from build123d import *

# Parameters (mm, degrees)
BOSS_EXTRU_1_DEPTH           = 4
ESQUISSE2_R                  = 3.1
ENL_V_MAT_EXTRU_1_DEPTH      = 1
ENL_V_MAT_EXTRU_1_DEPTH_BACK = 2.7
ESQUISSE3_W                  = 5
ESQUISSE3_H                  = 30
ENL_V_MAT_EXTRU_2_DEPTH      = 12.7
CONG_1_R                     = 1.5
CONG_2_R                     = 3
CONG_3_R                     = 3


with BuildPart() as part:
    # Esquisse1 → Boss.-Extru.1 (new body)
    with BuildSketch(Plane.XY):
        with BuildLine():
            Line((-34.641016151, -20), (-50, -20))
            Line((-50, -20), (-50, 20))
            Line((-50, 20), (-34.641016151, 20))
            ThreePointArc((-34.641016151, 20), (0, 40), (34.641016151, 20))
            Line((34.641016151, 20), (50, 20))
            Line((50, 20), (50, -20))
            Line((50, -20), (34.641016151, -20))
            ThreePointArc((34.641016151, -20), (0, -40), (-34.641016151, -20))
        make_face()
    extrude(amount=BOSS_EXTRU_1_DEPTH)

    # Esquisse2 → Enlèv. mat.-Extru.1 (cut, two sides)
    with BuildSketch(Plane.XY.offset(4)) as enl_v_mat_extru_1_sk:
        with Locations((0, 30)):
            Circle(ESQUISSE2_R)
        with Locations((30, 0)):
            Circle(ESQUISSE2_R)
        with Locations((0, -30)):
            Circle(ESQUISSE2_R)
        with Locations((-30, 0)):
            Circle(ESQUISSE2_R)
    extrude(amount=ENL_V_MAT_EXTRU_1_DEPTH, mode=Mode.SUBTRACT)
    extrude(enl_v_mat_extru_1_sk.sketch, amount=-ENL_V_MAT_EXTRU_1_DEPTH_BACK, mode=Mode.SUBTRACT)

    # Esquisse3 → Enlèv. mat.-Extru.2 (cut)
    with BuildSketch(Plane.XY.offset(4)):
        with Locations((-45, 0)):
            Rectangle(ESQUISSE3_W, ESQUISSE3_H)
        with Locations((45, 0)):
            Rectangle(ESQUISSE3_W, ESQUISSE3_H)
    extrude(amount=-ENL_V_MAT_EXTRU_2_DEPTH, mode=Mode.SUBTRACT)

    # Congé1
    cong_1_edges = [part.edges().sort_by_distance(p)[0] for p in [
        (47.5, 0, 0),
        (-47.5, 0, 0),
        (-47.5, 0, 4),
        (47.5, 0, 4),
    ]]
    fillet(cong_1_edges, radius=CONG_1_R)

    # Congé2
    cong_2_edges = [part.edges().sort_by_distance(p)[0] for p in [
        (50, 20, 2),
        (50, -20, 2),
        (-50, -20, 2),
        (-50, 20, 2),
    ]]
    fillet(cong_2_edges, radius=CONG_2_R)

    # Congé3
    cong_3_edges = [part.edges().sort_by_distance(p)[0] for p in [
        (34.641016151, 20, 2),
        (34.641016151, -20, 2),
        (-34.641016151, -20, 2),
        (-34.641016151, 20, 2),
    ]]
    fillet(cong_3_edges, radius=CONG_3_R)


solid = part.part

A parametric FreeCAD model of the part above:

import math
import FreeCAD as App
import Part
import Sketcher
from FreeCAD import Vector


def edges_at(feature, points):
    """Names of the edges that pass closest to the given points."""
    edges = feature.Shape.Edges
    near = lambda p: min(range(len(edges)), key=lambda i: edges[i].distToShape(Part.Vertex(*p))[0])
    return sorted({f"Edge{near(p) + 1}" for p in points})


def add_polygon(sketch, points):
    """Adds a closed chain of lines whose ends are joined by coincident constraints."""
    first, n = sketch.GeometryCount, len(points)
    for a, b in zip(points, points[1:] + points[:1]):
        sketch.addGeometry(Part.LineSegment(App.Vector(*a, 0), App.Vector(*b, 0)), False)
    for i in range(n):
        sketch.addConstraint(Sketcher.Constraint("Coincident", first + i, 2, first + (i + 1) % n, 1))

doc = App.newDocument("Part")
body = doc.addObject("PartDesign::Body", "Body")

# Sketch on XY plane
sketch1 = doc.addObject("Sketcher::SketchObject", "Sketch")
body.addObject(sketch1)
sketch1.AttachmentSupport = (doc.XY_Plane, [""])
sketch1.MapMode = "FlatFace"
sketch1.addGeometry([
    Part.LineSegment(Vector(-50, -20, 0), Vector(-35, -20, 0)),  # 0
    Part.ArcOfCircle(Part.Circle(Vector(0, 0, 0), Vector(0, 0, 1), 40), math.radians(-150), math.radians(-30)),  # 1
    Part.LineSegment(Vector(35, -20, 0), Vector(50, -20, 0)),  # 2
    Part.LineSegment(Vector(50, -20, 0), Vector(50, 20, 0)),  # 3
    Part.LineSegment(Vector(50, 20, 0), Vector(35, 20, 0)),  # 4
    Part.ArcOfCircle(Part.Circle(Vector(0, 0, 0), Vector(0, 0, 1), 40), math.radians(30), math.radians(150)),  # 5
    Part.LineSegment(Vector(-35, 20, 0), Vector(-50, 20, 0)),  # 6
    Part.LineSegment(Vector(-50, 20, 0), Vector(-50, -20, 0)),  # 7
], False)
sketch1.addConstraint([
    Sketcher.Constraint("Coincident", 0, 2, 1, 1),
    Sketcher.Constraint("Coincident", 1, 2, 2, 1),
    Sketcher.Constraint("Coincident", 2, 2, 3, 1),
    Sketcher.Constraint("Coincident", 3, 2, 4, 1),
    Sketcher.Constraint("Coincident", 4, 2, 5, 1),
    Sketcher.Constraint("Coincident", 5, 2, 6, 1),
    Sketcher.Constraint("Coincident", 6, 2, 7, 1),
    Sketcher.Constraint("Coincident", 7, 2, 0, 1),
    Sketcher.Constraint("Horizontal", 0),
    Sketcher.Constraint("Horizontal", 2),
    Sketcher.Constraint("Vertical", 3),
    Sketcher.Constraint("Horizontal", 4),
    Sketcher.Constraint("Horizontal", 6),
    Sketcher.Constraint("Vertical", 7),
    Sketcher.Constraint("Coincident", 1, 3, -1, 1),
    Sketcher.Constraint("Coincident", 5, 3, -1, 1),
    Sketcher.Constraint("Equal", 1, 5),
    Sketcher.Constraint("Symmetric", 2, 2, 6, 2, -1, 1),
    Sketcher.Constraint("Horizontal", 0, 2, 1, 2),
    Sketcher.Constraint("Horizontal", 4, 2, 5, 2),
    Sketcher.Constraint("Radius", 1, 40.0),
    Sketcher.Constraint("DistanceY", 3, 1, 3, 2, 40.0),
    Sketcher.Constraint("DistanceX", -1, 1, 2, 2, 50.0),
])
pad1 = doc.addObject("PartDesign::Pad", "Pad")
body.addObject(pad1)
pad1.Profile = sketch1
pad1.Length = 4

# Sketch on XY plane
sketch2 = doc.addObject("Sketcher::SketchObject", "Sketch001")
body.addObject(sketch2)
sketch2.AttachmentSupport = (doc.XY_Plane, [""])
sketch2.MapMode = "FlatFace"
sketch2.AttachmentOffset = App.Placement(Vector(0, 0, 4), App.Rotation())
sketch2.addGeometry([
    Part.Circle(Vector(0, 30, 0), Vector(0, 0, 1), 3.1),
    Part.Circle(Vector(30, 0, 0), Vector(0, 0, 1), 3.1),
    Part.Circle(Vector(0, -30, 0), Vector(0, 0, 1), 3.1),
    Part.Circle(Vector(-30, 0, 0), Vector(0, 0, 1), 3.1),
], False)
sketch2.addConstraint([
    Sketcher.Constraint("Equal", 0, 1),
    Sketcher.Constraint("Equal", 1, 2),
    Sketcher.Constraint("Equal", 2, 3),
    Sketcher.Constraint("Symmetric", 0, 3, 2, 3, -1, 1),
    Sketcher.Constraint("Symmetric", 1, 3, 3, 3, -1, 1),
    Sketcher.Constraint("PointOnObject", 0, 3, -2),
    Sketcher.Constraint("PointOnObject", 1, 3, -1),
    Sketcher.Constraint("Diameter", 0, 6.2),
    Sketcher.Constraint("DistanceY", -1, 1, 0, 3, 30.0),
    Sketcher.Constraint("DistanceX", -1, 1, 1, 3, 30.0),
])
pocket1 = doc.addObject("PartDesign::Pocket", "Pocket")
body.addObject(pocket1)
pocket1.Profile = sketch2
pocket1.Type = "TwoLengths"
pocket1.Length = 1
pocket1.Length2 = 2.7
pocket1.Reversed = True

# Sketch on XY plane
sketch3 = doc.addObject("Sketcher::SketchObject", "Sketch002")
body.addObject(sketch3)
sketch3.AttachmentSupport = (doc.XY_Plane, [""])
sketch3.MapMode = "FlatFace"
sketch3.AttachmentOffset = App.Placement(Vector(0, 0, 4), App.Rotation())
add_polygon(sketch3, [(-48, 15), (-48, -15), (-42, -15), (-42, 15)])  # lines 0-3
add_polygon(sketch3, [(42, 15), (42, -15), (48, -15), (48, 15)])  # lines 4-7
sketch3.addConstraint([
    Sketcher.Constraint("Vertical", 0),
    Sketcher.Constraint("Horizontal", 1),
    Sketcher.Constraint("Vertical", 2),
    Sketcher.Constraint("Horizontal", 3),
    Sketcher.Constraint("Vertical", 4),
    Sketcher.Constraint("Horizontal", 5),
    Sketcher.Constraint("Vertical", 6),
    Sketcher.Constraint("Horizontal", 7),
    Sketcher.Constraint("Symmetric", 2, 2, 4, 2, -1, 1),
    Sketcher.Constraint("Symmetric", 0, 2, 6, 2, -1, 1),
    Sketcher.Constraint("Horizontal", 1, 2, 4, 2),
    Sketcher.Constraint("DistanceX", 1, 1, 1, 2, 5.0),
    Sketcher.Constraint("DistanceY", 0, 2, 0, 1, 30.0),
    Sketcher.Constraint("DistanceX", 1, 2, 4, 2, 85.0),
])
pocket2 = doc.addObject("PartDesign::Pocket", "Pocket001")
body.addObject(pocket2)
pocket2.Profile = sketch3
pocket2.Length = 12.7
doc.recompute()

fillet = doc.addObject("PartDesign::Fillet", "Fillet")
body.addObject(fillet)
fillet.Base = (pocket2, edges_at(pocket2, [
    (47.5, 0, 0),
    (-47.5, 0, 0),
    (-47.5, 0, 4),
    (47.5, 0, 4),
]))
fillet.Radius = 1.5
doc.recompute()

fillet2 = doc.addObject("PartDesign::Fillet", "Fillet001")
body.addObject(fillet2)
fillet2.Base = (fillet, edges_at(fillet, [
    (50, 20, 2),
    (50, -20, 2),
    (-50, -20, 2),
    (-50, 20, 2),
]))
fillet2.Radius = 3
doc.recompute()

fillet3 = doc.addObject("PartDesign::Fillet", "Fillet002")
body.addObject(fillet3)
fillet3.Base = (fillet2, edges_at(fillet2, [
    (34.641, 20, 2),
    (34.641, -20, 2),
    (-34.641, -20, 2),
    (-34.641, 20, 2),
]))
fillet3.Radius = 3

doc.recompute()
